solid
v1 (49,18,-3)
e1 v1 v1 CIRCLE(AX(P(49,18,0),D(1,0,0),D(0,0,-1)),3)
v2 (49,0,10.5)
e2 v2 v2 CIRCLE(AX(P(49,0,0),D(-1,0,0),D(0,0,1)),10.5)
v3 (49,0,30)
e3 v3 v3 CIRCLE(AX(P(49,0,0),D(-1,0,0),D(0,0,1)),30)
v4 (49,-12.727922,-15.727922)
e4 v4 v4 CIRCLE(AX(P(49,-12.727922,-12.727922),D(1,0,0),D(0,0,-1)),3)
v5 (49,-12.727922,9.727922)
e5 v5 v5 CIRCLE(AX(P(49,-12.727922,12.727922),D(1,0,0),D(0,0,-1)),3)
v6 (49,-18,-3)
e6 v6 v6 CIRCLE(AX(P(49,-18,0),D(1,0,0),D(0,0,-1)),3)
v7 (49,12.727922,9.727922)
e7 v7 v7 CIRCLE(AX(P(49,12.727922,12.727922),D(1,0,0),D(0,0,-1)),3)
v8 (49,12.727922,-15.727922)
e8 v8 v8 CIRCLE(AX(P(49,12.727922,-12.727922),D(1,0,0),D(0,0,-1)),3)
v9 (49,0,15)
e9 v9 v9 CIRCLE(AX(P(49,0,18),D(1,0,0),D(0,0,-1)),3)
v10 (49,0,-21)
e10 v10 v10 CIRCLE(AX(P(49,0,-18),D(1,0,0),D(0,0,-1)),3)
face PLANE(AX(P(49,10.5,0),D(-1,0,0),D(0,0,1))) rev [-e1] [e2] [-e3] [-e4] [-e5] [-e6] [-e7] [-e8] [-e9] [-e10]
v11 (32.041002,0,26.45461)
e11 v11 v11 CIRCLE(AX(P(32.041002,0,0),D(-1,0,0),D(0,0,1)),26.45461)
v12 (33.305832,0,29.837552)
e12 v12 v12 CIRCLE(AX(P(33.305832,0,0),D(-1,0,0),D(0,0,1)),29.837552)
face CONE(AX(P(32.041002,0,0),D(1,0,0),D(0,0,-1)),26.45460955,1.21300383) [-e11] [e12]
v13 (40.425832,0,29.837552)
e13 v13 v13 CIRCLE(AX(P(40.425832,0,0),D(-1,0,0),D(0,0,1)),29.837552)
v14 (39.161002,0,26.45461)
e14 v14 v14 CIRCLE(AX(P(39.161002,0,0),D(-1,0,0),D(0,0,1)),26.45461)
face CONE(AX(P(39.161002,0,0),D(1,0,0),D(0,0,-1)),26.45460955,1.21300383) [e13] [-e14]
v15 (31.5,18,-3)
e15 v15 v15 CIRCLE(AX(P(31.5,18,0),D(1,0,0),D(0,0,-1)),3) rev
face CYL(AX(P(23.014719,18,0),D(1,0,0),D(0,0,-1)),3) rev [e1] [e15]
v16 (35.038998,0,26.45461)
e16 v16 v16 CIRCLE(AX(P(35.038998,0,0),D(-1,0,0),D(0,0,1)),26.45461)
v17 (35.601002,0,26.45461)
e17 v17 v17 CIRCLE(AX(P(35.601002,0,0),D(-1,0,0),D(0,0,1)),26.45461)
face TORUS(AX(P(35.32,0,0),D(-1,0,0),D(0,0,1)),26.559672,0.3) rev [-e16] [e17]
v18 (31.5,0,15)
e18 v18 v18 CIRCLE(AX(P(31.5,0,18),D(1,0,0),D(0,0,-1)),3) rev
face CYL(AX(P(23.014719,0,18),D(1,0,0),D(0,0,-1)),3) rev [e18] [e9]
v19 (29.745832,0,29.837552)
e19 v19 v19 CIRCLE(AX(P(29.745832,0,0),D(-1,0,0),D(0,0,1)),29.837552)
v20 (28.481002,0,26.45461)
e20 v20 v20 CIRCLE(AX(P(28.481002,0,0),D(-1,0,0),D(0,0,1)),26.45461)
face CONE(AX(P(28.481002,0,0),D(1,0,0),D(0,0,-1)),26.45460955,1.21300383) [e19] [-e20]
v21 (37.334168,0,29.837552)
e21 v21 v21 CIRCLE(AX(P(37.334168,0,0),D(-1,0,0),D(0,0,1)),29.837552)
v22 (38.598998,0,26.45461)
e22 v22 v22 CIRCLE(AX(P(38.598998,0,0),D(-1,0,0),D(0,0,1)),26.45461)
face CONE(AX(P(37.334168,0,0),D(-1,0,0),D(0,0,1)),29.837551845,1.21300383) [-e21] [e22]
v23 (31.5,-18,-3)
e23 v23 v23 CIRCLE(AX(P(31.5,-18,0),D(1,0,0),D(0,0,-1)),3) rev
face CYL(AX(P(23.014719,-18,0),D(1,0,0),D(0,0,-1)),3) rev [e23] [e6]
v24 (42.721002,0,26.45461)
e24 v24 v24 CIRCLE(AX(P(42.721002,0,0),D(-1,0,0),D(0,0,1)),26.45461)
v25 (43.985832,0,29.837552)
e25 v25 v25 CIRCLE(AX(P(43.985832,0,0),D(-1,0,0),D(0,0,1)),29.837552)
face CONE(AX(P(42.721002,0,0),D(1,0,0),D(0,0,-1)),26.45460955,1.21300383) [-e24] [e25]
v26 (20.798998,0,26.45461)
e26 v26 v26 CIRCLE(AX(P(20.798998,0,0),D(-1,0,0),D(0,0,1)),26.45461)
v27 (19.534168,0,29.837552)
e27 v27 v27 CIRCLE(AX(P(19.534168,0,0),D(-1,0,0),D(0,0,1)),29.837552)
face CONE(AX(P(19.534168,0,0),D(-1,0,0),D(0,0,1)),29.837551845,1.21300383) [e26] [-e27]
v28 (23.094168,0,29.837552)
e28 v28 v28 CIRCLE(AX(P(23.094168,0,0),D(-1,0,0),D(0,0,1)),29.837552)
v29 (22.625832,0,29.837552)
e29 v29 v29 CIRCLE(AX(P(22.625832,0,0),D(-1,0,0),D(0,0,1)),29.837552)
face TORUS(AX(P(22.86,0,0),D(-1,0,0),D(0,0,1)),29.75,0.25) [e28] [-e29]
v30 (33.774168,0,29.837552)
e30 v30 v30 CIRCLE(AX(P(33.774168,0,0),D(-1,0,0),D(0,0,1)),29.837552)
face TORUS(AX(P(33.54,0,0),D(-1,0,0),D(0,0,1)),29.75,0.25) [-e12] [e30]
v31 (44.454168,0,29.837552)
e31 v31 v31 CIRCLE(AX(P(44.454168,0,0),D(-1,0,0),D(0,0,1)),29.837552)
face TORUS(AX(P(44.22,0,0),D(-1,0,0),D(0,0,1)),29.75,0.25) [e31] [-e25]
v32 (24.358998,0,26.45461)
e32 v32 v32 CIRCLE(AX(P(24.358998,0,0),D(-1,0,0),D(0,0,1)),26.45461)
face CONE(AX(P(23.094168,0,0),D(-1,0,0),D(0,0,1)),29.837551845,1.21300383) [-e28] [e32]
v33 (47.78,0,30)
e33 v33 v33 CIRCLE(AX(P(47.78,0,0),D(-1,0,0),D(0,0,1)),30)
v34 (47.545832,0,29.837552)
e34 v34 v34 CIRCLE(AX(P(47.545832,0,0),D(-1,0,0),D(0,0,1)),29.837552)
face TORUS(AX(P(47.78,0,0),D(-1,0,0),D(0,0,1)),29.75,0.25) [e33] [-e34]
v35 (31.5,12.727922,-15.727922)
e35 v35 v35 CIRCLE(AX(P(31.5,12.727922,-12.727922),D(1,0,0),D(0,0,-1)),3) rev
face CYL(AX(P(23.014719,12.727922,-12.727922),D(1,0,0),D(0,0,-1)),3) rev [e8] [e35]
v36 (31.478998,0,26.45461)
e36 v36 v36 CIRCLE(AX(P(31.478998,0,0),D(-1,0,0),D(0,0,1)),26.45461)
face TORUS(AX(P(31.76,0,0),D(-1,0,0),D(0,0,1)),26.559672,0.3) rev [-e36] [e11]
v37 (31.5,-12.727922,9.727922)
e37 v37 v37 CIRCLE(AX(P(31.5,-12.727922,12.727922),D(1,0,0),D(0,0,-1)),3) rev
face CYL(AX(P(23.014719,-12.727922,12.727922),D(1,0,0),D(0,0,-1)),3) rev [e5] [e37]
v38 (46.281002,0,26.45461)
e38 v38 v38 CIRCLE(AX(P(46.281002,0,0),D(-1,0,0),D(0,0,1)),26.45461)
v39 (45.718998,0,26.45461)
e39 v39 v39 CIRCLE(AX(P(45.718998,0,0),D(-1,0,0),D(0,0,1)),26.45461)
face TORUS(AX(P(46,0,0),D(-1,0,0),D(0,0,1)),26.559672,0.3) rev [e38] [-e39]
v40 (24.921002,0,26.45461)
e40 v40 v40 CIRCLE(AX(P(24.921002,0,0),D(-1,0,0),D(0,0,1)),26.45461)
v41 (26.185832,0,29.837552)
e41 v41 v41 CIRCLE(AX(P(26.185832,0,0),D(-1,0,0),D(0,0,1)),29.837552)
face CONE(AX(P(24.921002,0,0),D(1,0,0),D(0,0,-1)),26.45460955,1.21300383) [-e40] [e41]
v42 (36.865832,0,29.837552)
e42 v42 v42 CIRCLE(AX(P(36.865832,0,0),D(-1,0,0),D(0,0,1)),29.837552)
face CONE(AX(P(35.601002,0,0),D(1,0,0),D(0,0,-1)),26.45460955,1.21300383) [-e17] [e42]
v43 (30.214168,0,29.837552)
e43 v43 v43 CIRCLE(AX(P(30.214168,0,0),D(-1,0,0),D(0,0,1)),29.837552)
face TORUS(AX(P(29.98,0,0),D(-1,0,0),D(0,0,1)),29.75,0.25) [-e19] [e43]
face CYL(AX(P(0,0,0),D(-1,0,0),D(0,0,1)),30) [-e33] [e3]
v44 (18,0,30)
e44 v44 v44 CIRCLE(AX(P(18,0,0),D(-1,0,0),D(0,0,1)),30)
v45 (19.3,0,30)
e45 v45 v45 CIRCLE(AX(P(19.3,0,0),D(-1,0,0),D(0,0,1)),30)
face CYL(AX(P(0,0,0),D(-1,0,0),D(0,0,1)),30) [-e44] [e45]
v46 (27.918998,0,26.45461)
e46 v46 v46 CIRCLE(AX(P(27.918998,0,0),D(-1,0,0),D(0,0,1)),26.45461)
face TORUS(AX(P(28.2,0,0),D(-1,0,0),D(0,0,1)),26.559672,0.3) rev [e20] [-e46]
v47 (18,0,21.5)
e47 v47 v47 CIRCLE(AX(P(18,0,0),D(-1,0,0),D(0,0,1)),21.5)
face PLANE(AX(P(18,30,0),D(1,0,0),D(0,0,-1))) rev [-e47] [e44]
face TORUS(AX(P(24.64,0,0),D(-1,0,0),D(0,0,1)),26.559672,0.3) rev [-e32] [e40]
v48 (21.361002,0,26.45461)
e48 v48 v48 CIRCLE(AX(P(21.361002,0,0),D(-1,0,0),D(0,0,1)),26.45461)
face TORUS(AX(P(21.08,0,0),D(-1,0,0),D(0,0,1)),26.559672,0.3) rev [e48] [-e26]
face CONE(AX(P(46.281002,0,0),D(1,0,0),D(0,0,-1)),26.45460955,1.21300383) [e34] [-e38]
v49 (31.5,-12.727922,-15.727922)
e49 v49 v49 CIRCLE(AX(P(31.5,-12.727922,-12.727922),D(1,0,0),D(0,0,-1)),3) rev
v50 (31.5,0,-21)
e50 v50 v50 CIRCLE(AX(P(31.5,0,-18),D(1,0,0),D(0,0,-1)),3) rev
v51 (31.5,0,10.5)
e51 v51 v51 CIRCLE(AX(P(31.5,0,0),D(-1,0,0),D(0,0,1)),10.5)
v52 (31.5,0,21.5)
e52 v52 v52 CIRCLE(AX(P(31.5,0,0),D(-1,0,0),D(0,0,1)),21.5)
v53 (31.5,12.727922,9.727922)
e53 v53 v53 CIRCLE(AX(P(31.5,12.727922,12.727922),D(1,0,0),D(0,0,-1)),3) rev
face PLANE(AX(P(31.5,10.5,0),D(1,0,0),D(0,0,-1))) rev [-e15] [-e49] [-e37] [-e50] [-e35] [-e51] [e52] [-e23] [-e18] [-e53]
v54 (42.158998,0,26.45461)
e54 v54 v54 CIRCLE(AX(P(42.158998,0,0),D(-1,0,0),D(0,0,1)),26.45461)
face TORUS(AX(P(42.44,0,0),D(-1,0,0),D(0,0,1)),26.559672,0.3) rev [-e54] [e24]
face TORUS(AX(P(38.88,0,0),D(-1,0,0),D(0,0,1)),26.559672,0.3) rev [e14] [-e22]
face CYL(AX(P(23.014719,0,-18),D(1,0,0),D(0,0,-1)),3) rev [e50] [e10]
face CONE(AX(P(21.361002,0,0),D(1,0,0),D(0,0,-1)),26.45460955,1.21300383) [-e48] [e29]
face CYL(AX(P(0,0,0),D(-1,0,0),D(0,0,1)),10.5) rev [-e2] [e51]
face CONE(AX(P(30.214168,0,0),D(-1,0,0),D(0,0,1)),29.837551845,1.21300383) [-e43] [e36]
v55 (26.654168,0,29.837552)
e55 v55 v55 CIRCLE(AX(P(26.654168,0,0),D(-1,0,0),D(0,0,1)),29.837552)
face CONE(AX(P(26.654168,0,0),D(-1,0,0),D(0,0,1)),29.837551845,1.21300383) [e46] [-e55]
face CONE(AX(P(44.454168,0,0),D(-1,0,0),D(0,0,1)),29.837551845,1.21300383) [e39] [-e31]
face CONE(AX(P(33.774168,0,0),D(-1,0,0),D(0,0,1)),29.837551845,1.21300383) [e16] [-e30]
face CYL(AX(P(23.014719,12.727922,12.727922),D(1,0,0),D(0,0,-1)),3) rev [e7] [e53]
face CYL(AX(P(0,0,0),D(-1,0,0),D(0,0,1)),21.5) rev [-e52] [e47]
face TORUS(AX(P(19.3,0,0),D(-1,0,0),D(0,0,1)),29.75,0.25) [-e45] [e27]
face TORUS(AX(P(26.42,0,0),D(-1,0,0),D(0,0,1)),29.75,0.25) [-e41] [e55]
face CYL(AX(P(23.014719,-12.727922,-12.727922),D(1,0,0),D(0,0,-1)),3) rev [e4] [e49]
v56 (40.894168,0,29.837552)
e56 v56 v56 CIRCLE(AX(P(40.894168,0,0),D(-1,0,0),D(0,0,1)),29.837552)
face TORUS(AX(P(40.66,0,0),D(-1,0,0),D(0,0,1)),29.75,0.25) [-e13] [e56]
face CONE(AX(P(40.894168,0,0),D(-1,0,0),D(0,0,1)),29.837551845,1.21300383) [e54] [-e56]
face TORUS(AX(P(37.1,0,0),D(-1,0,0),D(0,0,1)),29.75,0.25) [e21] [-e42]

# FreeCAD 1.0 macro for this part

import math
import FreeCAD as App
import Part
import Sketcher

V = App.Vector
Q = App.Units.Quantity


def add_polygon(sketch, points):
    """Adds a closed chain of lines whose ends are joined by coincident constraints."""
    first, n = sketch.GeometryCount, len(points)
    for a, b in zip(points, points[1:] + points[:1]):
        sketch.addGeometry(Part.LineSegment(App.Vector(*a, 0), App.Vector(*b, 0)), False)
    for i in range(n):
        sketch.addConstraint(Sketcher.Constraint("Coincident", first + i, 2, first + (i + 1) % n, 1))

doc = App.newDocument("Part")
params = doc.addObject("Spreadsheet::Sheet", "Params")
for row, (alias, value) in enumerate([
    ("sketch1_width", "31 mm"),
    ("sketch1_height", "11 mm"),
    ("sketch1_width2", "13.5 mm"),
    ("sketch1_height2", "19.5 mm"),
    ("revolution_angle", "360 deg"),
    ("sketch2_radius", "0.3 mm"),
    ("sketch2_radius2", "0.25 mm"),
    ("sketch2_width", "3.56 mm"),
    ("groove_angle", "360 deg"),
    ("linearpattern_pitch", "3.56 mm"),
    ("sketch3_diameter", "6 mm"),
    ("pocket1_length", "17.5 mm"),
], start=1):
    params.set(f"A{row}", alias)
    params.set(f"B{row}", "=" + value)
    params.setAlias(f"B{row}", alias)

body = doc.addObject("PartDesign::Body", "Body")

sketch1 = body.newObject("Sketcher::SketchObject", "Sketch")
sketch1.AttachmentSupport = (doc.getObject("XY_Plane"), [""])
sketch1.MapMode = "FlatFace"
add_polygon(sketch1, [(49, 10), (49, 30), (18, 30), (18, 22), (32, 22), (32, 10)])
sketch1.addConstraint([
    Sketcher.Constraint("Vertical", 0),
    Sketcher.Constraint("Horizontal", 1),
    Sketcher.Constraint("Vertical", 2),
    Sketcher.Constraint("Horizontal", 3),
    Sketcher.Constraint("Vertical", 4),
    Sketcher.Constraint("Horizontal", 5),
    Sketcher.Constraint("DistanceX", 1, 2, 1, 1, 31.0),
    Sketcher.Constraint("DistanceY", 4, 2, 4, 1, 11.0),
    Sketcher.Constraint("DistanceX", 3, 1, 3, 2, 13.5),
    Sketcher.Constraint("DistanceY", 0, 1, 0, 2, 19.5),
    Sketcher.Constraint("DistanceX", -1, 1, 0, 2, 49.0),
    Sketcher.Constraint("DistanceY", -1, 1, 0, 2, 30.0),
])
sketch1.setExpression("Constraints[12]", "Params.sketch1_width")
sketch1.setExpression("Constraints[13]", "Params.sketch1_height")
sketch1.setExpression("Constraints[14]", "Params.sketch1_width2")
sketch1.setExpression("Constraints[15]", "Params.sketch1_height2")
revolution = body.newObject("PartDesign::Revolution", "Revolution")
revolution.Profile = sketch1
revolution.ReferenceAxis = (sketch1, ["H_Axis"])
revolution.setExpression("Angle", "Params.revolution_angle")

sketch2 = body.newObject("Sketcher::SketchObject", "Sketch001")
sketch2.AttachmentSupport = (doc.getObject("XY_Plane"), [""])
sketch2.MapMode = "FlatFace"
sketch2.addGeometry([
    Part.LineSegment(V(46.28, 26.45, 0), V(47.55, 29.84, 0)),
    Part.ArcOfCircle(Part.Circle(V(47.78, 29.75, 0), V(0, 0, 1), 0.25), math.radians(90), math.radians(160)),
    Part.LineSegment(V(47.78, 30, 0), V(44.22, 30, 0)),
    Part.ArcOfCircle(Part.Circle(V(44.22, 29.75, 0), V(0, 0, 1), 0.25), math.radians(20), math.radians(90)),
    Part.LineSegment(V(44.45, 29.84, 0), V(45.72, 26.45, 0)),
    Part.ArcOfCircle(Part.Circle(V(46, 26.56, 0), V(0, 0, 1), 0.3), math.radians(-160), math.radians(-20)),
], False)
sketch2.addConstraint([
    Sketcher.Constraint("Tangent", 0, 2, 1, 2),
    Sketcher.Constraint("Tangent", 1, 1, 2, 1),
    Sketcher.Constraint("Tangent", 2, 2, 3, 2),
    Sketcher.Constraint("Tangent", 3, 1, 4, 1),
    Sketcher.Constraint("Tangent", 4, 2, 5, 1),
    Sketcher.Constraint("Tangent", 5, 2, 0, 1),
    Sketcher.Constraint("Horizontal", 2),
    Sketcher.Constraint("Equal", 1, 3),
    Sketcher.Constraint("Horizontal", 0, 2, 3, 1),
    Sketcher.Constraint("Radius", 5, 0.3),
    Sketcher.Constraint("Radius", 1, 0.25),
    Sketcher.Constraint("DistanceX", -1, 1, 5, 3, 46.0),
    Sketcher.Constraint("DistanceY", -1, 1, 1, 1, 30.0),
    Sketcher.Constraint("Angle", 0, Q("69.5 deg")),
    Sketcher.Constraint("DistanceX", 2, 2, 2, 1, 3.56),
])
sketch2.setExpression("Constraints[9]", "Params.sketch2_radius")
sketch2.setExpression("Constraints[10]", "Params.sketch2_radius2")
sketch2.setExpression("Constraints[14]", "Params.sketch2_width")
groove = body.newObject("PartDesign::Groove", "Groove")
groove.Profile = sketch2
groove.ReferenceAxis = (sketch2, ["H_Axis"])
groove.setExpression("Angle", "Params.groove_angle")
doc.recompute()

linearpattern = body.newObject("PartDesign::LinearPattern", "LinearPattern")
linearpattern.Originals = [groove]
linearpattern.Direction = (doc.getObject("X_Axis"), [""])
linearpattern.Mode = "offset"
linearpattern.setExpression("Offset", "Params.linearpattern_pitch")
linearpattern.Occurrences = 8
linearpattern.Reversed = True
body.Tip = linearpattern

sketch3 = body.newObject("Sketcher::SketchObject", "Sketch002")
sketch3.AttachmentSupport = (doc.getObject("YZ_Plane"), [""])
sketch3.MapMode = "FlatFace"
sketch3.AttachmentOffset = App.Placement(V(0, 0, 49), App.Rotation())
sketch3.addGeometry([
    Part.Circle(V(18, 0, 0), V(0, 0, 1), 3),
    Part.Circle(V(12.7, -12.7, 0), V(0, 0, 1), 3),
    Part.Circle(V(0, -18, 0), V(0, 0, 1), 3),
    Part.Circle(V(-12.7, -12.7, 0), V(0, 0, 1), 3),
    Part.Circle(V(-18, 0, 0), V(0, 0, 1), 3),
    Part.Circle(V(-12.7, 12.7, 0), V(0, 0, 1), 3),
    Part.Circle(V(0, 18, 0), V(0, 0, 1), 3),
    Part.Circle(V(12.7, 12.7, 0), V(0, 0, 1), 3),
], False)
sketch3.addConstraint([
    Sketcher.Constraint("Equal", 0, 1),
    Sketcher.Constraint("Equal", 1, 2),
    Sketcher.Constraint("Equal", 2, 3),
    Sketcher.Constraint("Equal", 3, 4),
    Sketcher.Constraint("Equal", 4, 5),
    Sketcher.Constraint("Equal", 5, 6),
    Sketcher.Constraint("Equal", 6, 7),
    Sketcher.Constraint("Symmetric", 0, 3, 4, 3, -1, 1),
    Sketcher.Constraint("Symmetric", 1, 3, 5, 3, -1, 1),
    Sketcher.Constraint("Symmetric", 2, 3, 6, 3, -1, 1),
    Sketcher.Constraint("Symmetric", 3, 3, 7, 3, -1, 1),
    Sketcher.Constraint("Symmetric", 1, 3, 3, 3, -2),
    Sketcher.Constraint("PointOnObject", 0, 3, -1),
    Sketcher.Constraint("PointOnObject", 2, 3, -2),
    Sketcher.Constraint("Diameter", 0, 6.0),
    Sketcher.Constraint("DistanceX", -1, 1, 0, 3, 18.0),
    Sketcher.Constraint("DistanceY", 2, 3, -1, 1, 18.0),
    Sketcher.Constraint("DistanceX", -1, 1, 1, 3, 12.727922),
    Sketcher.Constraint("DistanceY", 1, 3, -1, 1, 12.727922),
])
sketch3.setExpression("Constraints[14]", "Params.sketch3_diameter")
pocket1 = body.newObject("PartDesign::Pocket", "Pocket")
pocket1.Profile = sketch3
pocket1.setExpression("Length", "Params.pocket1_length")

doc.recompute()
